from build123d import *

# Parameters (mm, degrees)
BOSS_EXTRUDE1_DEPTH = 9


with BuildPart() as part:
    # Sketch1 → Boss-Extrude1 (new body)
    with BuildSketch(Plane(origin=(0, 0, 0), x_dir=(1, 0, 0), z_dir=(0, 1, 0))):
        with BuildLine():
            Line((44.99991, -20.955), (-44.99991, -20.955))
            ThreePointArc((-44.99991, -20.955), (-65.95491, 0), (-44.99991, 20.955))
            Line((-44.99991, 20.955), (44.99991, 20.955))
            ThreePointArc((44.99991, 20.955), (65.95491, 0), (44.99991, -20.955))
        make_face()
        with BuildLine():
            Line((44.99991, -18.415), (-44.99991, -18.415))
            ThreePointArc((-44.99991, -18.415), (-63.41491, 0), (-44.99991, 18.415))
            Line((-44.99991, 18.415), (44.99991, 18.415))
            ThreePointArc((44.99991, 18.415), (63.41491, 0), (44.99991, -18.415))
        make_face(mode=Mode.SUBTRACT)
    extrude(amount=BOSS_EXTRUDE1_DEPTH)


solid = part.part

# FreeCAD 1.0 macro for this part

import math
import FreeCAD as App
import Part
import Sketcher
from FreeCAD import Vector
Q = App.Units.Quantity

doc = App.newDocument("Part")
body = doc.addObject("PartDesign::Body", "Body")

# Sketch on XZ plane
sketch1 = doc.addObject("Sketcher::SketchObject", "Sketch")
body.addObject(sketch1)
sketch1.AttachmentSupport = (doc.XZ_Plane, [""])
sketch1.MapMode = "FlatFace"
sketch1.addGeometry(Part.LineSegment(Vector(-45, 21, 0), Vector(45, 21, 0)), False)
sketch1.addGeometry(Part.ArcOfCircle(Part.Circle(Vector(45, 0, 0), Vector(0, 0, 1), 21), math.radians(-90), math.radians(90)), False)
sketch1.addGeometry(Part.LineSegment(Vector(45, -21, 0), Vector(-45, -21, 0)), False)
sketch1.addGeometry(Part.ArcOfCircle(Part.Circle(Vector(-45, 0, 0), Vector(0, 0, 1), 21), math.radians(90), math.radians(270)), False)
sketch1.addGeometry(Part.LineSegment(Vector(45, 18, 0), Vector(-45, 18, 0)), False)
sketch1.addGeometry(Part.ArcOfCircle(Part.Circle(Vector(-45, 0, 0), Vector(0, 0, 1), 18), math.radians(90), math.radians(270)), False)
sketch1.addGeometry(Part.LineSegment(Vector(-45, -18, 0), Vector(45, -18, 0)), False)
sketch1.addGeometry(Part.ArcOfCircle(Part.Circle(Vector(45, 0, 0), Vector(0, 0, 1), 18), math.radians(-90), math.radians(90)), False)
sketch1.addConstraint(Sketcher.Constraint("Tangent", 0, 2, 1, 2))
sketch1.addConstraint(Sketcher.Constraint("Tangent", 1, 1, 2, 1))
sketch1.addConstraint(Sketcher.Constraint("Tangent", 2, 2, 3, 2))
sketch1.addConstraint(Sketcher.Constraint("Tangent", 3, 1, 0, 1))
sketch1.addConstraint(Sketcher.Constraint("Tangent", 4, 2, 5, 1))
sketch1.addConstraint(Sketcher.Constraint("Tangent", 5, 2, 6, 1))
sketch1.addConstraint(Sketcher.Constraint("Tangent", 6, 2, 7, 1))
sketch1.addConstraint(Sketcher.Constraint("Tangent", 7, 2, 4, 1))
sketch1.addConstraint(Sketcher.Constraint("Horizontal", 0))
sketch1.addConstraint(Sketcher.Constraint("Horizontal", 2))
sketch1.addConstraint(Sketcher.Constraint("Horizontal", 4))
sketch1.addConstraint(Sketcher.Constraint("Horizontal", 6))
sketch1.addConstraint(Sketcher.Constraint("Coincident", 5, 3, 3, 3))
sketch1.addConstraint(Sketcher.Constraint("Symmetric", 1, 3, 3, 3, -1, 1))
sketch1.addConstraint(Sketcher.Constraint("Vertical", 7, 3, 0, 2))
sketch1.addConstraint(Sketcher.Constraint("Radius", 1, Q("0.825 in")))
sketch1.addConstraint(Sketcher.Constraint("Radius", 5, Q("0.725 in")))
sketch1.addConstraint(Sketcher.Constraint("DistanceX", 0, 1, 0, 2, Q("3.5433 in")))
pad1 = doc.addObject("PartDesign::Pad", "Pad")
body.addObject(pad1)
pad1.Profile = sketch1
pad1.Length = 9
pad1.Reversed = True

doc.recompute()
